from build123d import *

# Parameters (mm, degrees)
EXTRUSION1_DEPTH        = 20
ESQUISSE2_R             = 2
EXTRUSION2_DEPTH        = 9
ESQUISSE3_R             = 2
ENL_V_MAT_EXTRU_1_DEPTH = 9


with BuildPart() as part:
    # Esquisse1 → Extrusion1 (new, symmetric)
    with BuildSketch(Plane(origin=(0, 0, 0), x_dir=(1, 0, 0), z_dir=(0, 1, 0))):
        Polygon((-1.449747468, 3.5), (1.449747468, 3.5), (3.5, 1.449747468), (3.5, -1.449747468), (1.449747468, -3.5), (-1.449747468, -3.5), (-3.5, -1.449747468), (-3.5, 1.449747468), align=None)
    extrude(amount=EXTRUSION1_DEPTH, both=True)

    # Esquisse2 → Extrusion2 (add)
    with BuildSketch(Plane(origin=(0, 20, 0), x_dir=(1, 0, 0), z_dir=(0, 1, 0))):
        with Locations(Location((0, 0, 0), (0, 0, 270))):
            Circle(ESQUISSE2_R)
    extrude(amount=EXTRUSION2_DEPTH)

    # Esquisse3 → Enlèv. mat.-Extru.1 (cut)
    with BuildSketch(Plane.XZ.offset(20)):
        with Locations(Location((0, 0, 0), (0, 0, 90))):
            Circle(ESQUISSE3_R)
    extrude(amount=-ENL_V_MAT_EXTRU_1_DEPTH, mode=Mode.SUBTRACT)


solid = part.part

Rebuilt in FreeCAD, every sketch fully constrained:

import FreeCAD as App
import Part
import Sketcher
from FreeCAD import Vector


def add_polygon(sketch, points):
    """Adds a closed chain of lines whose ends are joined by coincident constraints."""
    first, n = sketch.GeometryCount, len(points)
    for a, b in zip(points, points[1:] + points[:1]):
        sketch.addGeometry(Part.LineSegment(App.Vector(*a, 0), App.Vector(*b, 0)), False)
    for i in range(n):
        sketch.addConstraint(Sketcher.Constraint("Coincident", first + i, 2, first + (i + 1) % n, 1))

doc = App.newDocument("Part")
params = doc.addObject("Spreadsheet::Sheet", "Params")
for row, (alias, value) in enumerate([
    ("pad1_length", "40 mm"),
    ("sketch2_diameter", "4 mm"),
    ("pad2_length", "9 mm"),
    ("sketch3_diameter", "4 mm"),
    ("pocket1_length", "9 mm"),
], start=1):
    params.set(f"A{row}", alias)
    params.set(f"B{row}", "=" + value)
    params.setAlias(f"B{row}", alias)

body = doc.addObject("PartDesign::Body", "Body")

# Sketch on XZ plane
sketch1 = body.newObject("Sketcher::SketchObject", "Sketch")
sketch1.AttachmentSupport = (doc.getObject("XZ_Plane"), [""])
sketch1.MapMode = "FlatFace"
add_polygon(sketch1, [(1.449747, -3.5), (-1.449747, -3.5), (-3.5, -1.449747), (-3.5, 1.449747), (-1.449747, 3.5), (1.449747, 3.5), (3.5, 1.449747), (3.5, -1.449747)])  # lines 0-7
sketch1.addConstraint(Sketcher.Constraint("Horizontal", 0))
sketch1.addConstraint(Sketcher.Constraint("Vertical", 2))
sketch1.addConstraint(Sketcher.Constraint("Horizontal", 4))
sketch1.addConstraint(Sketcher.Constraint("Vertical", 6))
sketch1.addConstraint(Sketcher.Constraint("Symmetric", 0, 2, 4, 2, -1, 1))
sketch1.addConstraint(Sketcher.Constraint("Symmetric", 1, 2, 5, 2, -1, 1))
sketch1.addConstraint(Sketcher.Constraint("Perpendicular", 1, 3))
sketch1.addConstraint(Sketcher.Constraint("Perpendicular", 5, 7))
sketch1.addConstraint(Sketcher.Constraint("Horizontal", 2, 2, 5, 2))
sketch1.addConstraint(Sketcher.Constraint("Horizontal", 1, 2, 6, 2))
sketch1.addConstraint(Sketcher.Constraint("Vertical", 0, 2, 3, 2))
sketch1.addConstraint(Sketcher.Constraint("Equal", 4, 2))
sketch1.addConstraint(Sketcher.Constraint("DistanceY", 0, 2, 3, 2, 7.0))
sketch1.addConstraint(Sketcher.Constraint("DistanceX", 0, 2, 0, 1, 2.899495))
pad1 = body.newObject("PartDesign::Pad", "Pad")
pad1.Profile = sketch1
pad1.setExpression("Length", "Params.pad1_length")
pad1.Midplane = True

# Sketch on XZ plane
sketch2 = body.newObject("Sketcher::SketchObject", "Sketch001")
sketch2.AttachmentSupport = (doc.getObject("XZ_Plane"), [""])
sketch2.MapMode = "FlatFace"
sketch2.AttachmentOffset = App.Placement(Vector(0, 0, -20), App.Rotation())
sketch2.addGeometry(Part.Circle(Vector(0, 0, 0), Vector(0, 0, 1), 2), False)
sketch2.addConstraint(Sketcher.Constraint("Coincident", 0, 3, -1, 1))
sketch2.addConstraint(Sketcher.Constraint("Diameter", 0, 4.0))
sketch2.setExpression("Constraints[1]", "Params.sketch2_diameter")
pad2 = body.newObject("PartDesign::Pad", "Pad001")
pad2.Profile = sketch2
pad2.setExpression("Length", "Params.pad2_length")
pad2.Reversed = True

# Sketch on XZ plane
sketch3 = body.newObject("Sketcher::SketchObject", "Sketch002")
sketch3.AttachmentSupport = (doc.getObject("XZ_Plane"), [""])
sketch3.MapMode = "FlatFace"
sketch3.AttachmentOffset = App.Placement(Vector(0, 0, 20), App.Rotation())
sketch3.addGeometry(Part.Circle(Vector(0, 0, 0), Vector(0, 0, 1), 2), False)
sketch3.addConstraint(Sketcher.Constraint("Coincident", 0, 3, -1, 1))
sketch3.addConstraint(Sketcher.Constraint("Diameter", 0, 4.0))
sketch3.setExpression("Constraints[1]", "Params.sketch3_diameter")
pocket1 = body.newObject("PartDesign::Pocket", "Pocket")
pocket1.Profile = sketch3
pocket1.setExpression("Length", "Params.pocket1_length")

doc.recompute()
